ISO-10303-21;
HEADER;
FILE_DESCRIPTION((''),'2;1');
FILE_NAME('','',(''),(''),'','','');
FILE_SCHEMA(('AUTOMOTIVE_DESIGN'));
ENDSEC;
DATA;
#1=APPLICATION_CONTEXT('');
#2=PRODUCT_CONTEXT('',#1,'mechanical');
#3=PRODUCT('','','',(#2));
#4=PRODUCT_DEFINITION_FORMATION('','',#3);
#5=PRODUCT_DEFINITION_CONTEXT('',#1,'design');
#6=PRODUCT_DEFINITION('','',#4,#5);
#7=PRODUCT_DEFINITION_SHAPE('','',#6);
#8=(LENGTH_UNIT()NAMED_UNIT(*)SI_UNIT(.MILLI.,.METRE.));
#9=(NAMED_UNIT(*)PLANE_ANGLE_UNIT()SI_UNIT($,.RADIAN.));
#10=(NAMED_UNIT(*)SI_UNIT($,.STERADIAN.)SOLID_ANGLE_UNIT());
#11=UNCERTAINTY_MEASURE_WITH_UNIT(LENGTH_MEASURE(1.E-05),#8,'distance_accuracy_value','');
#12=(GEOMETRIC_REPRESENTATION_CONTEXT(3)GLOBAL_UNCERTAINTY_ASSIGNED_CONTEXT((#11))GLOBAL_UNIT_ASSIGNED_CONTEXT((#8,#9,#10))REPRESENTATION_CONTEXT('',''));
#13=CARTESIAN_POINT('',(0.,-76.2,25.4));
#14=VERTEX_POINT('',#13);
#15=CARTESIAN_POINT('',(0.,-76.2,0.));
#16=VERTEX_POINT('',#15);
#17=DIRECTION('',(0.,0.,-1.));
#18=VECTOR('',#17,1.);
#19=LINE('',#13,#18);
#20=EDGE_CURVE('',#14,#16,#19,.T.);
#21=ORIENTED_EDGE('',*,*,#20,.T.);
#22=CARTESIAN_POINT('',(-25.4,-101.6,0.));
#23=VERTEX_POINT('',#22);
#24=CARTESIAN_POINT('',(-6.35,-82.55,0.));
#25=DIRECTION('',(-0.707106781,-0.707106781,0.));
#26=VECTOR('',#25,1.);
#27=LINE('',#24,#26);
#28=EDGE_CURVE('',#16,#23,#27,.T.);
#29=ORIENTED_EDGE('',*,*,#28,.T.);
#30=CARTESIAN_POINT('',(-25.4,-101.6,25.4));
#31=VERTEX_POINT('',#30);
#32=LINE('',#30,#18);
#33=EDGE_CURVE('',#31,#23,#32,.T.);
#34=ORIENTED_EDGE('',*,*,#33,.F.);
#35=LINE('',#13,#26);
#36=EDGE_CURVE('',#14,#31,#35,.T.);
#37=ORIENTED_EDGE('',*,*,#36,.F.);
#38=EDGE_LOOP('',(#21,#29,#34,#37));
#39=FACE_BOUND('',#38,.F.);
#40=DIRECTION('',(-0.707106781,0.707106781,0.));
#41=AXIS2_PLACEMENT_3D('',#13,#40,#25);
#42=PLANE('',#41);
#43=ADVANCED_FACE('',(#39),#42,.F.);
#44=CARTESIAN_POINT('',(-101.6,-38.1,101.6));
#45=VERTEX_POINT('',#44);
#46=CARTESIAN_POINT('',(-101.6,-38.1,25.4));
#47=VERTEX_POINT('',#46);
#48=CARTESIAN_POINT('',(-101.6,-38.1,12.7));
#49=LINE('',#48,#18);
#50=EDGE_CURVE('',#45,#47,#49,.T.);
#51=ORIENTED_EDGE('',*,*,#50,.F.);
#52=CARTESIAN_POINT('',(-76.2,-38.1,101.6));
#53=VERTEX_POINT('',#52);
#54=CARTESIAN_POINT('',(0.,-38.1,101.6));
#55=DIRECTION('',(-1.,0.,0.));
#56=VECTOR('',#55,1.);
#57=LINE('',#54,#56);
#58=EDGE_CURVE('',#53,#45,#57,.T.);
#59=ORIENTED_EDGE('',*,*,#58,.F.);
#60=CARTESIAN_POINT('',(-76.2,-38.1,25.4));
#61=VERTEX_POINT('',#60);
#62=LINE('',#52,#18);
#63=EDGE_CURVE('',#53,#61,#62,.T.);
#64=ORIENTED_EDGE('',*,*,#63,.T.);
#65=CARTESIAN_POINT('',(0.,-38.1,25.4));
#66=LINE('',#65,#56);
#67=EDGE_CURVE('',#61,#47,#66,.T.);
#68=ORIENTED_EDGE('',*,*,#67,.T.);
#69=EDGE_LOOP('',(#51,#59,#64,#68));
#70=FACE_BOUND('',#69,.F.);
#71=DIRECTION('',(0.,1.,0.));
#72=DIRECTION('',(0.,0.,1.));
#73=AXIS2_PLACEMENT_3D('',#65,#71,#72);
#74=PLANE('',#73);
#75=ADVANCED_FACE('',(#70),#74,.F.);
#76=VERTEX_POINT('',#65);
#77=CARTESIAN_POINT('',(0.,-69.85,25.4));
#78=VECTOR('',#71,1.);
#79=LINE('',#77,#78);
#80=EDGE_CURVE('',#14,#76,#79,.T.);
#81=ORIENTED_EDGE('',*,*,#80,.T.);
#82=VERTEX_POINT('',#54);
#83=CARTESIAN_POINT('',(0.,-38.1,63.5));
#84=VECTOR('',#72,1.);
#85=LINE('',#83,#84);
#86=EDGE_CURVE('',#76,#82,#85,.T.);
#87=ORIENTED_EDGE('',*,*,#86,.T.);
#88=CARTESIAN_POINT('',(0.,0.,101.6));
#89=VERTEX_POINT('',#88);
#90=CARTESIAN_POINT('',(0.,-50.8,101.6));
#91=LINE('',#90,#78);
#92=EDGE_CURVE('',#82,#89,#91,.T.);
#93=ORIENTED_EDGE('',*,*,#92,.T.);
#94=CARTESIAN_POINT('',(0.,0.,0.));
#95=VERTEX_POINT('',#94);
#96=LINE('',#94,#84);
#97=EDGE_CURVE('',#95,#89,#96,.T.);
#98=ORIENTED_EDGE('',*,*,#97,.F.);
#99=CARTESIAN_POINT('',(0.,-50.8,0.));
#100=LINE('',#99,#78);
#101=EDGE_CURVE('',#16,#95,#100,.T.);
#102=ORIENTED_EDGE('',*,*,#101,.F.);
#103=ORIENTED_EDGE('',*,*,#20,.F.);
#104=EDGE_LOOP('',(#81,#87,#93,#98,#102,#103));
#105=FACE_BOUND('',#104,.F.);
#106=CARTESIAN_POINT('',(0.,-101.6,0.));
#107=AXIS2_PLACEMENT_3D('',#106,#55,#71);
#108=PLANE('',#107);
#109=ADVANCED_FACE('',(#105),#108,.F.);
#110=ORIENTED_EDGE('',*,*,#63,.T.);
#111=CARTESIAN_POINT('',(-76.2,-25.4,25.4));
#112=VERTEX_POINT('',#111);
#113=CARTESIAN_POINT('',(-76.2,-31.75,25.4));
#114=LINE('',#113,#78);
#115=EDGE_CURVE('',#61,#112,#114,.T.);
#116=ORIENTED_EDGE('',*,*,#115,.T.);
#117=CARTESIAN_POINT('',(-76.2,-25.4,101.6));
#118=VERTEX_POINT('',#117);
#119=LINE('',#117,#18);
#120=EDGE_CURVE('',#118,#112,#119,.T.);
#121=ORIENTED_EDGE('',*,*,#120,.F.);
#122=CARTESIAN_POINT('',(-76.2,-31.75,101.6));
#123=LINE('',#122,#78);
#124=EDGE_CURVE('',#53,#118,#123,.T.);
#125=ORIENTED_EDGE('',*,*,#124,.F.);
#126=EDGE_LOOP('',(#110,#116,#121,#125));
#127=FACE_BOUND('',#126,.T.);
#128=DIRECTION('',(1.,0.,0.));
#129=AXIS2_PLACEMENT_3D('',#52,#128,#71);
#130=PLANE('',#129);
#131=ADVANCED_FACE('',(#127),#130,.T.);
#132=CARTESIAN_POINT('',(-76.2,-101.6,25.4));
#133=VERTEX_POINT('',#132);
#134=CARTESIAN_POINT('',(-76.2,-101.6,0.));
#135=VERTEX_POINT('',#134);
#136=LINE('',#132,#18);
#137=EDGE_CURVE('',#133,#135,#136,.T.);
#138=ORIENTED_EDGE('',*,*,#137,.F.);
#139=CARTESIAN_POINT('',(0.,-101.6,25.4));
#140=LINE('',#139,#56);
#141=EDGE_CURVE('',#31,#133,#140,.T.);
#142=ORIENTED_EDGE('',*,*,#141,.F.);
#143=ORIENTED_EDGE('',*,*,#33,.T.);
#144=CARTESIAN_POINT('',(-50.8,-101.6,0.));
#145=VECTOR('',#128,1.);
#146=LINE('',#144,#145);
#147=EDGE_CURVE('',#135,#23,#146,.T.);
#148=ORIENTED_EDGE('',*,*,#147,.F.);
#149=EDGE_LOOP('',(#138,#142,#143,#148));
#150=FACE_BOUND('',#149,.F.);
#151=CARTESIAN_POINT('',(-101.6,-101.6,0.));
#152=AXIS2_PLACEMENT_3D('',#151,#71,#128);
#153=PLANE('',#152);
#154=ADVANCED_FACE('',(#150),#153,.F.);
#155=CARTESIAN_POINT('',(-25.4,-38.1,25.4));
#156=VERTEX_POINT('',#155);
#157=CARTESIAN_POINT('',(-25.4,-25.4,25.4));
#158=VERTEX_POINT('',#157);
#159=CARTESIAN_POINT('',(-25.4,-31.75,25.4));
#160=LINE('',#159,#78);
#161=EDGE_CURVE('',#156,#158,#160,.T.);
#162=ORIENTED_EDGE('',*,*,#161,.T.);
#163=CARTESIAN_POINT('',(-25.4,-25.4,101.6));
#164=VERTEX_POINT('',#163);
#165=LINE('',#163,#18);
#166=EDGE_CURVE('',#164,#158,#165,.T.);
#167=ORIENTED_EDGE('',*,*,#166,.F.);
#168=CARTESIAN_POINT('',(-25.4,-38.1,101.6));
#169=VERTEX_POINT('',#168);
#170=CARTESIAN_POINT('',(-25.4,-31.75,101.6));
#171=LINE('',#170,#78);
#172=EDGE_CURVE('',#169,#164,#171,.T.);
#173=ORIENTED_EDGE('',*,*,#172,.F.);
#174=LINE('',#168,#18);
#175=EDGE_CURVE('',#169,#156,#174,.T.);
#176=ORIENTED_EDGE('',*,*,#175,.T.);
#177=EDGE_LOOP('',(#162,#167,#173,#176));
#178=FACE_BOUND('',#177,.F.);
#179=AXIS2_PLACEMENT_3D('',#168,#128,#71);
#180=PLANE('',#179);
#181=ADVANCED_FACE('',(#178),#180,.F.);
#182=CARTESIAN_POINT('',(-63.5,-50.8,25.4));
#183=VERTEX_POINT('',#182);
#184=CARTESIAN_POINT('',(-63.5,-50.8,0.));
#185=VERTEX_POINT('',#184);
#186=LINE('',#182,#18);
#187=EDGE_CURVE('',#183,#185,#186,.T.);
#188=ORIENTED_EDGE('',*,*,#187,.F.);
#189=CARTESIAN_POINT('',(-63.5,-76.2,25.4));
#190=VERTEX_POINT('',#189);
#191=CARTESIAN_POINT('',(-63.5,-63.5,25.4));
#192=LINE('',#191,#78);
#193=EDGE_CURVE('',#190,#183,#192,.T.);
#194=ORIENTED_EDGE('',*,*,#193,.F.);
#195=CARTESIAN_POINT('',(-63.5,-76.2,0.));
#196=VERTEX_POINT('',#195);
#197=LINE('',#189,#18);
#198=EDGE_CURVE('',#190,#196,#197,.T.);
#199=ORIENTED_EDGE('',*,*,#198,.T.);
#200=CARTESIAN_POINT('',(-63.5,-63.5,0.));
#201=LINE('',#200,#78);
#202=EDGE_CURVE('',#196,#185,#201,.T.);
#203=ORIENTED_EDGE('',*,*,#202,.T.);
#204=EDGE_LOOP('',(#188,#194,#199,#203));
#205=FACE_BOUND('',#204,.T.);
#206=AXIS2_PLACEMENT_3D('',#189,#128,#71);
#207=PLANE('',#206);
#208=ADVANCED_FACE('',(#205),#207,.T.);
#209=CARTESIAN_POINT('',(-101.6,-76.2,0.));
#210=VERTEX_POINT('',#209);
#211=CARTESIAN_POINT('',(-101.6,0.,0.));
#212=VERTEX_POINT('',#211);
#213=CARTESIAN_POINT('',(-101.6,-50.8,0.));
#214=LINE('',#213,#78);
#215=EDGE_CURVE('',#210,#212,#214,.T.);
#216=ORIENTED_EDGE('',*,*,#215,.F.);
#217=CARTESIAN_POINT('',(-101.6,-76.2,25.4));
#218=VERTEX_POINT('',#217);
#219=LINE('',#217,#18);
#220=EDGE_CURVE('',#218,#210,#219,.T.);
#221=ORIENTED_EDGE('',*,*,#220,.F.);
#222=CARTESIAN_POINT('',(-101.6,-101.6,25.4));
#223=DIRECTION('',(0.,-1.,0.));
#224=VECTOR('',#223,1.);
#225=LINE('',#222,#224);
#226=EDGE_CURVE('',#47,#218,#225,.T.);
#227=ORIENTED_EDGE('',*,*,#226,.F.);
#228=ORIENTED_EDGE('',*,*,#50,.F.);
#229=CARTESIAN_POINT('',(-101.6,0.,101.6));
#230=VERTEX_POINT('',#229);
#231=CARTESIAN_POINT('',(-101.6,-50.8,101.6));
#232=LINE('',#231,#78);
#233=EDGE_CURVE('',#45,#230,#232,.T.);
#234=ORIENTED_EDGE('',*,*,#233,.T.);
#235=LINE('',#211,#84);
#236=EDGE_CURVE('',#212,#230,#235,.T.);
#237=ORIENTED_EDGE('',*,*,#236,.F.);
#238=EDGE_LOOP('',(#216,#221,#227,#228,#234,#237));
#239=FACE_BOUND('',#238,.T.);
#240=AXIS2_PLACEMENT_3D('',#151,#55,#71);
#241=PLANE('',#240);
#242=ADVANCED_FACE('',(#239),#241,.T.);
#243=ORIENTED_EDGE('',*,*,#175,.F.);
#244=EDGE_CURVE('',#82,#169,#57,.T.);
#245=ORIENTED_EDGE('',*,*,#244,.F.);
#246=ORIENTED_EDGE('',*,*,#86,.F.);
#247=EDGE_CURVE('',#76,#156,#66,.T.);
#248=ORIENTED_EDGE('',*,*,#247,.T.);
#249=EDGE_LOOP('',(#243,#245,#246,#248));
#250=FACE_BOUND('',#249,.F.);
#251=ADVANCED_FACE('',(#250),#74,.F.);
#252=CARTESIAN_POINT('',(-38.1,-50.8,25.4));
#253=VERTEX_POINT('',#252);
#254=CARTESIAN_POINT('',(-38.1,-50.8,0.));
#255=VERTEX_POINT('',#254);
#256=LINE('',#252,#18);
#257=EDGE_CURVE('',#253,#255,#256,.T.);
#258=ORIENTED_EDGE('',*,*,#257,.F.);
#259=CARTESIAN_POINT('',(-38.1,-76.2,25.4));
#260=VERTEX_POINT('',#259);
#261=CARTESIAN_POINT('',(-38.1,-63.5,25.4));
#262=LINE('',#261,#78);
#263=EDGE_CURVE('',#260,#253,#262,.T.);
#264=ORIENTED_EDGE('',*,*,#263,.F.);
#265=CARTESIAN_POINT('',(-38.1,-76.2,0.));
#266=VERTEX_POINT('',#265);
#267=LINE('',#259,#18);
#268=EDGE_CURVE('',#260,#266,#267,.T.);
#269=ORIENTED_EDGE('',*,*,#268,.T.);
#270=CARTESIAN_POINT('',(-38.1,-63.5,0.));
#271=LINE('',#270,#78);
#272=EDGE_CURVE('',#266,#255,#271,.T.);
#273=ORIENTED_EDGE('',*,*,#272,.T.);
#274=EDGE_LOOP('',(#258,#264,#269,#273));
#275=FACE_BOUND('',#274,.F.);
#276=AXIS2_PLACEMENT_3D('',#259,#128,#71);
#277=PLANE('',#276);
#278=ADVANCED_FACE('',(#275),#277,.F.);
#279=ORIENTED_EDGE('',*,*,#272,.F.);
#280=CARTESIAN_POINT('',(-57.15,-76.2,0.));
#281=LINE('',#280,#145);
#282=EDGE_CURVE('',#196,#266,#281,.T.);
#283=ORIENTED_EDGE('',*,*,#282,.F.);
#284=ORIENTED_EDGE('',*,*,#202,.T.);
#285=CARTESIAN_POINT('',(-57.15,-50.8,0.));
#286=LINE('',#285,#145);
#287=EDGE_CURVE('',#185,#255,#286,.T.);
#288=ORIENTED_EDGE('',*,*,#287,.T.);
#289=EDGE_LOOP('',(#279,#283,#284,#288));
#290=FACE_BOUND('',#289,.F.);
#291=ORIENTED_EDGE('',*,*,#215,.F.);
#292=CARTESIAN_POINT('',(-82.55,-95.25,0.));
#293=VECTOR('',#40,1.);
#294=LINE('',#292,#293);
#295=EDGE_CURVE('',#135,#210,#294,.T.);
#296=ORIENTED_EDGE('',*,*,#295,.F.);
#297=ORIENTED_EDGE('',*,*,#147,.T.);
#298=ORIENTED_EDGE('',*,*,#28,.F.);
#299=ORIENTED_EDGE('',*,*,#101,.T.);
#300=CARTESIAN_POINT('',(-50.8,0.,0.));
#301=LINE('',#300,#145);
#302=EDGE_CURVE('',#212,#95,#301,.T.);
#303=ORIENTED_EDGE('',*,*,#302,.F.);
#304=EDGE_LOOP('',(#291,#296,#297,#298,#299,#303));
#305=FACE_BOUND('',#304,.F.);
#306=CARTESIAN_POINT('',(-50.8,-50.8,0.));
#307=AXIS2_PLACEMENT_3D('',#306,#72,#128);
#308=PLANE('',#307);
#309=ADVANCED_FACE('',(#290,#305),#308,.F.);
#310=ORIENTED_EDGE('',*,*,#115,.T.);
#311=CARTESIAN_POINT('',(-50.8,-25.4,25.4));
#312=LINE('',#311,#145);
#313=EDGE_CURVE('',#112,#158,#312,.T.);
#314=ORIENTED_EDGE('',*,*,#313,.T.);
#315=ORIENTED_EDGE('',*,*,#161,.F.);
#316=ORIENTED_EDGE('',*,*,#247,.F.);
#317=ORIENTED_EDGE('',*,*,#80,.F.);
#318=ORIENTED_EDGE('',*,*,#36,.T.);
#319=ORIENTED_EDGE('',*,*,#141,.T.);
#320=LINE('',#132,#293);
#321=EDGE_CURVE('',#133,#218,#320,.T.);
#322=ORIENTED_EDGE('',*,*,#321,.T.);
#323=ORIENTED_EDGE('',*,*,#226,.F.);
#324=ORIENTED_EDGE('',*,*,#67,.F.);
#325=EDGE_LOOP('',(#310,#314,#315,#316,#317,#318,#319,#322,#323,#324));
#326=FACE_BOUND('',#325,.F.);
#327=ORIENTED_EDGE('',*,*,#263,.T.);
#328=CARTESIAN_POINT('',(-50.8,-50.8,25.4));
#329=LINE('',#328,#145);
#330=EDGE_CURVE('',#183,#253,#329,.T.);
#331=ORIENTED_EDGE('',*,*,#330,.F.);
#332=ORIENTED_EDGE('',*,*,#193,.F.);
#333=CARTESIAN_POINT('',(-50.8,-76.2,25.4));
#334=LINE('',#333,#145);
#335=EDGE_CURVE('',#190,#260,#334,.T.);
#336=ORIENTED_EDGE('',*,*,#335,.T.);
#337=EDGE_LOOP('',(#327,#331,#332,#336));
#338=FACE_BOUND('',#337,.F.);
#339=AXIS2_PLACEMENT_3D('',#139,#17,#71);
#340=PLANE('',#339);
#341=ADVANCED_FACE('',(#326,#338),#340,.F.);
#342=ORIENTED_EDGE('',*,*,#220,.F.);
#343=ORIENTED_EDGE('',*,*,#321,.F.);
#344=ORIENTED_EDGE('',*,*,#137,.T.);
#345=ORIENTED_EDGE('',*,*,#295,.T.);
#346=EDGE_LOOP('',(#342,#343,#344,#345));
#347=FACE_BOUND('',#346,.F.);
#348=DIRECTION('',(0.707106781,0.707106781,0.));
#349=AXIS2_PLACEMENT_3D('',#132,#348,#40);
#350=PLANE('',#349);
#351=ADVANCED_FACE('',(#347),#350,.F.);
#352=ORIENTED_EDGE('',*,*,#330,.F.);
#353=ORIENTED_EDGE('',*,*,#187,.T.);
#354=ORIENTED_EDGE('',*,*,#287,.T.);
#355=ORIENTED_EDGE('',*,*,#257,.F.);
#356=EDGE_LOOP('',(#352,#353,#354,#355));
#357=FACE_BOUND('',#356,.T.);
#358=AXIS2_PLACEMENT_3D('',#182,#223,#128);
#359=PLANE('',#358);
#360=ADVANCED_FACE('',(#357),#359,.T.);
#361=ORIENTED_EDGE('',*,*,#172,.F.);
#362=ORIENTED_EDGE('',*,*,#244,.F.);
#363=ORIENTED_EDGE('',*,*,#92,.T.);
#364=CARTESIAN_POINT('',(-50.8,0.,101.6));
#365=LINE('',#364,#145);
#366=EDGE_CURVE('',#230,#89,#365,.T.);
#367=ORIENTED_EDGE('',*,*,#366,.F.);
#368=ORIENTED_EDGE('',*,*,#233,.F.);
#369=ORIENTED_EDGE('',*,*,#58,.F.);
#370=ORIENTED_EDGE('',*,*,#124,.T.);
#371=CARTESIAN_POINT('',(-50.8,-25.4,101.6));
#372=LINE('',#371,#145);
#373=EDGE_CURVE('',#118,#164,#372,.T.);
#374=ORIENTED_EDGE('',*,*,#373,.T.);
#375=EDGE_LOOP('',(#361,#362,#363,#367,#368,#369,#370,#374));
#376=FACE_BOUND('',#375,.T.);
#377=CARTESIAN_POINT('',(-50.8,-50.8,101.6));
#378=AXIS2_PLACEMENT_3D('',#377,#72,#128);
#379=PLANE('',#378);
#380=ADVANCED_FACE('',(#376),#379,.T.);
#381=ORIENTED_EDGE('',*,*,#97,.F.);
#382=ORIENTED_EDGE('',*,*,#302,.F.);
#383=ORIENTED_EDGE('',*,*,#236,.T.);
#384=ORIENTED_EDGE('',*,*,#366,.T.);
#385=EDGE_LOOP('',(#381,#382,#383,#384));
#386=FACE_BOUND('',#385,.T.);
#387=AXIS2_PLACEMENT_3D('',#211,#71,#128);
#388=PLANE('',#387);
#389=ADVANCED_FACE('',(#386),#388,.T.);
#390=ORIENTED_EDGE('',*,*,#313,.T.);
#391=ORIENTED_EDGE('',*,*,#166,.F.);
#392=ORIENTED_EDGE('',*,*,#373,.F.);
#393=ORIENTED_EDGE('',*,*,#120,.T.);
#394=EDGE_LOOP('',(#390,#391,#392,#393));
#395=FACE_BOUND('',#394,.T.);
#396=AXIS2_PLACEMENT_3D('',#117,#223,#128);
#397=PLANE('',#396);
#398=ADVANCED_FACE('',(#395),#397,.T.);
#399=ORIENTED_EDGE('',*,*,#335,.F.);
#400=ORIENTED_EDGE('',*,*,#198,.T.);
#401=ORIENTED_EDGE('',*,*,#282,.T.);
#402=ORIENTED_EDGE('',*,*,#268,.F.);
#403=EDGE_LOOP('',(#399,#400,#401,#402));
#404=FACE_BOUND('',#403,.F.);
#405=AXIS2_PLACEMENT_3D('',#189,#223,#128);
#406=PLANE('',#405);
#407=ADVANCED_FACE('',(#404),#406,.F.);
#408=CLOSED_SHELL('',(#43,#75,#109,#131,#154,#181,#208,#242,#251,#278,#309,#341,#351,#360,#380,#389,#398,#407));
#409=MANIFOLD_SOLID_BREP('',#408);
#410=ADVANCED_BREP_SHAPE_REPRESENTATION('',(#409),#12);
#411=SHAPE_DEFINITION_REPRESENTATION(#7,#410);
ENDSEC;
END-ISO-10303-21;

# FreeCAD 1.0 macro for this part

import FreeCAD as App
import Part
import Sketcher
from FreeCAD import Vector
Q = App.Units.Quantity

doc = App.newDocument("Part")
body = doc.addObject("PartDesign::Body", "Body")

sketch1 = body.newObject("Sketcher::SketchObject", "Sketch")
sketch1.AttachmentSupport = (doc.getObject("XY_Plane"), [""])
sketch1.MapMode = "FlatFace"
sketch1.addGeometry([
    Part.LineSegment(Vector(-102, 0, 0), Vector(-102, -102, 0)),
    Part.LineSegment(Vector(-102, -102, 0), Vector(0, -102, 0)),
    Part.LineSegment(Vector(0, -102, 0), Vector(0, 0, 0)),
    Part.LineSegment(Vector(0, 0, 0), Vector(-102, 0, 0)),
], False)
sketch1.addConstraint([
    Sketcher.Constraint("Coincident", 0, 2, 1, 1),
    Sketcher.Constraint("Coincident", 1, 2, 2, 1),
    Sketcher.Constraint("Coincident", 2, 2, 3, 1),
    Sketcher.Constraint("Coincident", 3, 2, 0, 1),
    Sketcher.Constraint("Vertical", 0),
    Sketcher.Constraint("Horizontal", 1),
    Sketcher.Constraint("Vertical", 2),
    Sketcher.Constraint("Horizontal", 3),
    Sketcher.Constraint("Coincident", 2, 2, -1, 1),
    Sketcher.Constraint("Equal", 3, 0),
    Sketcher.Constraint("DistanceX", 1, 1, 1, 2, Q("4 in")),
])
pad1 = body.newObject("PartDesign::Pad", "Pad")
pad1.Profile = sketch1
pad1.Length = Q("4 in")

sketch2 = body.newObject("Sketcher::SketchObject", "Sketch001")
sketch2.AttachmentSupport = (doc.getObject("YZ_Plane"), [""])
sketch2.MapMode = "FlatFace"
sketch2.addGeometry([
    Part.LineSegment(Vector(-102, 102, 0), Vector(-102, 25, 0)),
    Part.LineSegment(Vector(-102, 25, 0), Vector(-38, 25, 0)),
    Part.LineSegment(Vector(-38, 25, 0), Vector(-38, 102, 0)),
    Part.LineSegment(Vector(-38, 102, 0), Vector(-102, 102, 0)),
], False)
sketch2.addConstraint([
    Sketcher.Constraint("Coincident", 0, 2, 1, 1),
    Sketcher.Constraint("Coincident", 1, 2, 2, 1),
    Sketcher.Constraint("Coincident", 2, 2, 3, 1),
    Sketcher.Constraint("Coincident", 3, 2, 0, 1),
    Sketcher.Constraint("Vertical", 0),
    Sketcher.Constraint("Horizontal", 1),
    Sketcher.Constraint("Vertical", 2),
    Sketcher.Constraint("Horizontal", 3),
    Sketcher.Constraint("DistanceY", 0, 2, 0, 1, Q("3 in")),
    Sketcher.Constraint("DistanceX", 1, 1, 1, 2, Q("2.5 in")),
    Sketcher.Constraint("DistanceX", 0, 2, -1, 1, Q("4 in")),
    Sketcher.Constraint("DistanceY", -1, 1, 0, 2, Q("1 in")),
])
pocket1 = body.newObject("PartDesign::Pocket", "Pocket")
pocket1.Profile = sketch2
pocket1.Length = Q("4.32 in")

sketch3 = body.newObject("Sketcher::SketchObject", "Sketch002")
sketch3.AttachmentSupport = (doc.getObject("XY_Plane"), [""])
sketch3.MapMode = "FlatFace"
sketch3.AttachmentOffset = App.Placement(Vector(0, 0, 1 * 25.4), App.Rotation())
sketch3.addGeometry([
    Part.LineSegment(Vector(0, -76, 0), Vector(-25, -102, 0)),
    Part.LineSegment(Vector(-25, -102, 0), Vector(0, -102, 0)),
    Part.LineSegment(Vector(0, -102, 0), Vector(0, -76, 0)),
    Part.LineSegment(Vector(-102, -76, 0), Vector(-102, -102, 0)),
    Part.LineSegment(Vector(-102, -102, 0), Vector(-76, -102, 0)),
    Part.LineSegment(Vector(-76, -102, 0), Vector(-102, -76, 0)),
    Part.LineSegment(Vector(-64, -51, 0), Vector(-64, -76, 0)),
    Part.LineSegment(Vector(-64, -76, 0), Vector(-38, -76, 0)),
    Part.LineSegment(Vector(-38, -76, 0), Vector(-38, -51, 0)),
    Part.LineSegment(Vector(-38, -51, 0), Vector(-64, -51, 0)),
], False)
sketch3.addConstraint([
    Sketcher.Constraint("Coincident", 0, 2, 1, 1),
    Sketcher.Constraint("Coincident", 1, 2, 2, 1),
    Sketcher.Constraint("Coincident", 2, 2, 0, 1),
    Sketcher.Constraint("Coincident", 3, 2, 4, 1),
    Sketcher.Constraint("Coincident", 4, 2, 5, 1),
    Sketcher.Constraint("Coincident", 5, 2, 3, 1),
    Sketcher.Constraint("Coincident", 6, 2, 7, 1),
    Sketcher.Constraint("Coincident", 7, 2, 8, 1),
    Sketcher.Constraint("Coincident", 8, 2, 9, 1),
    Sketcher.Constraint("Coincident", 9, 2, 6, 1),
    Sketcher.Constraint("Horizontal", 1),
    Sketcher.Constraint("Vertical", 2),
    Sketcher.Constraint("Vertical", 3),
    Sketcher.Constraint("Horizontal", 4),
    Sketcher.Constraint("Vertical", 6),
    Sketcher.Constraint("Horizontal", 7),
    Sketcher.Constraint("Vertical", 8),
    Sketcher.Constraint("Horizontal", 9),
    Sketcher.Constraint("PointOnObject", 1, 2, -2),
    Sketcher.Constraint("Perpendicular", 0, 5),
    Sketcher.Constraint("Horizontal", 1, 2, 3, 2),
    Sketcher.Constraint("Horizontal", 2, 2, 5, 2),
    Sketcher.Constraint("Horizontal", 5, 2, 6, 2),
    Sketcher.Constraint("Equal", 1, 4),
    Sketcher.Constraint("Equal", 4, 7),
    Sketcher.Constraint("Equal", 3, 6),
    Sketcher.Constraint("DistanceX", 1, 1, 1, 2, Q("1 in")),
    Sketcher.Constraint("DistanceY", 0, 2, -1, 1, Q("4 in")),
    Sketcher.Constraint("DistanceX", 3, 2, -1, 1, Q("4 in")),
    Sketcher.Constraint("DistanceX", 6, 2, -1, 1, Q("2.5 in")),
])
pocket2 = body.newObject("PartDesign::Pocket", "Pocket001")
pocket2.Profile = sketch3
pocket2.Length = Q("2.79 in")

sketch4 = body.newObject("Sketcher::SketchObject", "Sketch003")
sketch4.AttachmentSupport = (doc.getObject("XY_Plane"), [""])
sketch4.MapMode = "FlatFace"
sketch4.AttachmentOffset = App.Placement(Vector(0, 0, 4 * 25.4), App.Rotation())
sketch4.addGeometry([
    Part.LineSegment(Vector(-76, -25, 0), Vector(-76, -38, 0)),
    Part.LineSegment(Vector(-76, -38, 0), Vector(-25, -38, 0)),
    Part.LineSegment(Vector(-25, -38, 0), Vector(-25, -25, 0)),
    Part.LineSegment(Vector(-25, -25, 0), Vector(-76, -25, 0)),
], False)
sketch4.addConstraint([
    Sketcher.Constraint("Coincident", 0, 2, 1, 1),
    Sketcher.Constraint("Coincident", 1, 2, 2, 1),
    Sketcher.Constraint("Coincident", 2, 2, 3, 1),
    Sketcher.Constraint("Coincident", 3, 2, 0, 1),
    Sketcher.Constraint("Vertical", 0),
    Sketcher.Constraint("Horizontal", 1),
    Sketcher.Constraint("Vertical", 2),
    Sketcher.Constraint("Horizontal", 3),
    Sketcher.Constraint("DistanceX", 1, 1, 1, 2, Q("2 in")),
    Sketcher.Constraint("DistanceY", 0, 2, 0, 1, Q("0.5 in")),
    Sketcher.Constraint("DistanceX", 0, 2, -1, 1, Q("3 in")),
    Sketcher.Constraint("DistanceY", 2, 2, -1, 1, Q("1 in")),
])
pocket3 = body.newObject("PartDesign::Pocket", "Pocket002")
pocket3.Profile = sketch4
pocket3.Length = Q("3 in")

doc.recompute()
